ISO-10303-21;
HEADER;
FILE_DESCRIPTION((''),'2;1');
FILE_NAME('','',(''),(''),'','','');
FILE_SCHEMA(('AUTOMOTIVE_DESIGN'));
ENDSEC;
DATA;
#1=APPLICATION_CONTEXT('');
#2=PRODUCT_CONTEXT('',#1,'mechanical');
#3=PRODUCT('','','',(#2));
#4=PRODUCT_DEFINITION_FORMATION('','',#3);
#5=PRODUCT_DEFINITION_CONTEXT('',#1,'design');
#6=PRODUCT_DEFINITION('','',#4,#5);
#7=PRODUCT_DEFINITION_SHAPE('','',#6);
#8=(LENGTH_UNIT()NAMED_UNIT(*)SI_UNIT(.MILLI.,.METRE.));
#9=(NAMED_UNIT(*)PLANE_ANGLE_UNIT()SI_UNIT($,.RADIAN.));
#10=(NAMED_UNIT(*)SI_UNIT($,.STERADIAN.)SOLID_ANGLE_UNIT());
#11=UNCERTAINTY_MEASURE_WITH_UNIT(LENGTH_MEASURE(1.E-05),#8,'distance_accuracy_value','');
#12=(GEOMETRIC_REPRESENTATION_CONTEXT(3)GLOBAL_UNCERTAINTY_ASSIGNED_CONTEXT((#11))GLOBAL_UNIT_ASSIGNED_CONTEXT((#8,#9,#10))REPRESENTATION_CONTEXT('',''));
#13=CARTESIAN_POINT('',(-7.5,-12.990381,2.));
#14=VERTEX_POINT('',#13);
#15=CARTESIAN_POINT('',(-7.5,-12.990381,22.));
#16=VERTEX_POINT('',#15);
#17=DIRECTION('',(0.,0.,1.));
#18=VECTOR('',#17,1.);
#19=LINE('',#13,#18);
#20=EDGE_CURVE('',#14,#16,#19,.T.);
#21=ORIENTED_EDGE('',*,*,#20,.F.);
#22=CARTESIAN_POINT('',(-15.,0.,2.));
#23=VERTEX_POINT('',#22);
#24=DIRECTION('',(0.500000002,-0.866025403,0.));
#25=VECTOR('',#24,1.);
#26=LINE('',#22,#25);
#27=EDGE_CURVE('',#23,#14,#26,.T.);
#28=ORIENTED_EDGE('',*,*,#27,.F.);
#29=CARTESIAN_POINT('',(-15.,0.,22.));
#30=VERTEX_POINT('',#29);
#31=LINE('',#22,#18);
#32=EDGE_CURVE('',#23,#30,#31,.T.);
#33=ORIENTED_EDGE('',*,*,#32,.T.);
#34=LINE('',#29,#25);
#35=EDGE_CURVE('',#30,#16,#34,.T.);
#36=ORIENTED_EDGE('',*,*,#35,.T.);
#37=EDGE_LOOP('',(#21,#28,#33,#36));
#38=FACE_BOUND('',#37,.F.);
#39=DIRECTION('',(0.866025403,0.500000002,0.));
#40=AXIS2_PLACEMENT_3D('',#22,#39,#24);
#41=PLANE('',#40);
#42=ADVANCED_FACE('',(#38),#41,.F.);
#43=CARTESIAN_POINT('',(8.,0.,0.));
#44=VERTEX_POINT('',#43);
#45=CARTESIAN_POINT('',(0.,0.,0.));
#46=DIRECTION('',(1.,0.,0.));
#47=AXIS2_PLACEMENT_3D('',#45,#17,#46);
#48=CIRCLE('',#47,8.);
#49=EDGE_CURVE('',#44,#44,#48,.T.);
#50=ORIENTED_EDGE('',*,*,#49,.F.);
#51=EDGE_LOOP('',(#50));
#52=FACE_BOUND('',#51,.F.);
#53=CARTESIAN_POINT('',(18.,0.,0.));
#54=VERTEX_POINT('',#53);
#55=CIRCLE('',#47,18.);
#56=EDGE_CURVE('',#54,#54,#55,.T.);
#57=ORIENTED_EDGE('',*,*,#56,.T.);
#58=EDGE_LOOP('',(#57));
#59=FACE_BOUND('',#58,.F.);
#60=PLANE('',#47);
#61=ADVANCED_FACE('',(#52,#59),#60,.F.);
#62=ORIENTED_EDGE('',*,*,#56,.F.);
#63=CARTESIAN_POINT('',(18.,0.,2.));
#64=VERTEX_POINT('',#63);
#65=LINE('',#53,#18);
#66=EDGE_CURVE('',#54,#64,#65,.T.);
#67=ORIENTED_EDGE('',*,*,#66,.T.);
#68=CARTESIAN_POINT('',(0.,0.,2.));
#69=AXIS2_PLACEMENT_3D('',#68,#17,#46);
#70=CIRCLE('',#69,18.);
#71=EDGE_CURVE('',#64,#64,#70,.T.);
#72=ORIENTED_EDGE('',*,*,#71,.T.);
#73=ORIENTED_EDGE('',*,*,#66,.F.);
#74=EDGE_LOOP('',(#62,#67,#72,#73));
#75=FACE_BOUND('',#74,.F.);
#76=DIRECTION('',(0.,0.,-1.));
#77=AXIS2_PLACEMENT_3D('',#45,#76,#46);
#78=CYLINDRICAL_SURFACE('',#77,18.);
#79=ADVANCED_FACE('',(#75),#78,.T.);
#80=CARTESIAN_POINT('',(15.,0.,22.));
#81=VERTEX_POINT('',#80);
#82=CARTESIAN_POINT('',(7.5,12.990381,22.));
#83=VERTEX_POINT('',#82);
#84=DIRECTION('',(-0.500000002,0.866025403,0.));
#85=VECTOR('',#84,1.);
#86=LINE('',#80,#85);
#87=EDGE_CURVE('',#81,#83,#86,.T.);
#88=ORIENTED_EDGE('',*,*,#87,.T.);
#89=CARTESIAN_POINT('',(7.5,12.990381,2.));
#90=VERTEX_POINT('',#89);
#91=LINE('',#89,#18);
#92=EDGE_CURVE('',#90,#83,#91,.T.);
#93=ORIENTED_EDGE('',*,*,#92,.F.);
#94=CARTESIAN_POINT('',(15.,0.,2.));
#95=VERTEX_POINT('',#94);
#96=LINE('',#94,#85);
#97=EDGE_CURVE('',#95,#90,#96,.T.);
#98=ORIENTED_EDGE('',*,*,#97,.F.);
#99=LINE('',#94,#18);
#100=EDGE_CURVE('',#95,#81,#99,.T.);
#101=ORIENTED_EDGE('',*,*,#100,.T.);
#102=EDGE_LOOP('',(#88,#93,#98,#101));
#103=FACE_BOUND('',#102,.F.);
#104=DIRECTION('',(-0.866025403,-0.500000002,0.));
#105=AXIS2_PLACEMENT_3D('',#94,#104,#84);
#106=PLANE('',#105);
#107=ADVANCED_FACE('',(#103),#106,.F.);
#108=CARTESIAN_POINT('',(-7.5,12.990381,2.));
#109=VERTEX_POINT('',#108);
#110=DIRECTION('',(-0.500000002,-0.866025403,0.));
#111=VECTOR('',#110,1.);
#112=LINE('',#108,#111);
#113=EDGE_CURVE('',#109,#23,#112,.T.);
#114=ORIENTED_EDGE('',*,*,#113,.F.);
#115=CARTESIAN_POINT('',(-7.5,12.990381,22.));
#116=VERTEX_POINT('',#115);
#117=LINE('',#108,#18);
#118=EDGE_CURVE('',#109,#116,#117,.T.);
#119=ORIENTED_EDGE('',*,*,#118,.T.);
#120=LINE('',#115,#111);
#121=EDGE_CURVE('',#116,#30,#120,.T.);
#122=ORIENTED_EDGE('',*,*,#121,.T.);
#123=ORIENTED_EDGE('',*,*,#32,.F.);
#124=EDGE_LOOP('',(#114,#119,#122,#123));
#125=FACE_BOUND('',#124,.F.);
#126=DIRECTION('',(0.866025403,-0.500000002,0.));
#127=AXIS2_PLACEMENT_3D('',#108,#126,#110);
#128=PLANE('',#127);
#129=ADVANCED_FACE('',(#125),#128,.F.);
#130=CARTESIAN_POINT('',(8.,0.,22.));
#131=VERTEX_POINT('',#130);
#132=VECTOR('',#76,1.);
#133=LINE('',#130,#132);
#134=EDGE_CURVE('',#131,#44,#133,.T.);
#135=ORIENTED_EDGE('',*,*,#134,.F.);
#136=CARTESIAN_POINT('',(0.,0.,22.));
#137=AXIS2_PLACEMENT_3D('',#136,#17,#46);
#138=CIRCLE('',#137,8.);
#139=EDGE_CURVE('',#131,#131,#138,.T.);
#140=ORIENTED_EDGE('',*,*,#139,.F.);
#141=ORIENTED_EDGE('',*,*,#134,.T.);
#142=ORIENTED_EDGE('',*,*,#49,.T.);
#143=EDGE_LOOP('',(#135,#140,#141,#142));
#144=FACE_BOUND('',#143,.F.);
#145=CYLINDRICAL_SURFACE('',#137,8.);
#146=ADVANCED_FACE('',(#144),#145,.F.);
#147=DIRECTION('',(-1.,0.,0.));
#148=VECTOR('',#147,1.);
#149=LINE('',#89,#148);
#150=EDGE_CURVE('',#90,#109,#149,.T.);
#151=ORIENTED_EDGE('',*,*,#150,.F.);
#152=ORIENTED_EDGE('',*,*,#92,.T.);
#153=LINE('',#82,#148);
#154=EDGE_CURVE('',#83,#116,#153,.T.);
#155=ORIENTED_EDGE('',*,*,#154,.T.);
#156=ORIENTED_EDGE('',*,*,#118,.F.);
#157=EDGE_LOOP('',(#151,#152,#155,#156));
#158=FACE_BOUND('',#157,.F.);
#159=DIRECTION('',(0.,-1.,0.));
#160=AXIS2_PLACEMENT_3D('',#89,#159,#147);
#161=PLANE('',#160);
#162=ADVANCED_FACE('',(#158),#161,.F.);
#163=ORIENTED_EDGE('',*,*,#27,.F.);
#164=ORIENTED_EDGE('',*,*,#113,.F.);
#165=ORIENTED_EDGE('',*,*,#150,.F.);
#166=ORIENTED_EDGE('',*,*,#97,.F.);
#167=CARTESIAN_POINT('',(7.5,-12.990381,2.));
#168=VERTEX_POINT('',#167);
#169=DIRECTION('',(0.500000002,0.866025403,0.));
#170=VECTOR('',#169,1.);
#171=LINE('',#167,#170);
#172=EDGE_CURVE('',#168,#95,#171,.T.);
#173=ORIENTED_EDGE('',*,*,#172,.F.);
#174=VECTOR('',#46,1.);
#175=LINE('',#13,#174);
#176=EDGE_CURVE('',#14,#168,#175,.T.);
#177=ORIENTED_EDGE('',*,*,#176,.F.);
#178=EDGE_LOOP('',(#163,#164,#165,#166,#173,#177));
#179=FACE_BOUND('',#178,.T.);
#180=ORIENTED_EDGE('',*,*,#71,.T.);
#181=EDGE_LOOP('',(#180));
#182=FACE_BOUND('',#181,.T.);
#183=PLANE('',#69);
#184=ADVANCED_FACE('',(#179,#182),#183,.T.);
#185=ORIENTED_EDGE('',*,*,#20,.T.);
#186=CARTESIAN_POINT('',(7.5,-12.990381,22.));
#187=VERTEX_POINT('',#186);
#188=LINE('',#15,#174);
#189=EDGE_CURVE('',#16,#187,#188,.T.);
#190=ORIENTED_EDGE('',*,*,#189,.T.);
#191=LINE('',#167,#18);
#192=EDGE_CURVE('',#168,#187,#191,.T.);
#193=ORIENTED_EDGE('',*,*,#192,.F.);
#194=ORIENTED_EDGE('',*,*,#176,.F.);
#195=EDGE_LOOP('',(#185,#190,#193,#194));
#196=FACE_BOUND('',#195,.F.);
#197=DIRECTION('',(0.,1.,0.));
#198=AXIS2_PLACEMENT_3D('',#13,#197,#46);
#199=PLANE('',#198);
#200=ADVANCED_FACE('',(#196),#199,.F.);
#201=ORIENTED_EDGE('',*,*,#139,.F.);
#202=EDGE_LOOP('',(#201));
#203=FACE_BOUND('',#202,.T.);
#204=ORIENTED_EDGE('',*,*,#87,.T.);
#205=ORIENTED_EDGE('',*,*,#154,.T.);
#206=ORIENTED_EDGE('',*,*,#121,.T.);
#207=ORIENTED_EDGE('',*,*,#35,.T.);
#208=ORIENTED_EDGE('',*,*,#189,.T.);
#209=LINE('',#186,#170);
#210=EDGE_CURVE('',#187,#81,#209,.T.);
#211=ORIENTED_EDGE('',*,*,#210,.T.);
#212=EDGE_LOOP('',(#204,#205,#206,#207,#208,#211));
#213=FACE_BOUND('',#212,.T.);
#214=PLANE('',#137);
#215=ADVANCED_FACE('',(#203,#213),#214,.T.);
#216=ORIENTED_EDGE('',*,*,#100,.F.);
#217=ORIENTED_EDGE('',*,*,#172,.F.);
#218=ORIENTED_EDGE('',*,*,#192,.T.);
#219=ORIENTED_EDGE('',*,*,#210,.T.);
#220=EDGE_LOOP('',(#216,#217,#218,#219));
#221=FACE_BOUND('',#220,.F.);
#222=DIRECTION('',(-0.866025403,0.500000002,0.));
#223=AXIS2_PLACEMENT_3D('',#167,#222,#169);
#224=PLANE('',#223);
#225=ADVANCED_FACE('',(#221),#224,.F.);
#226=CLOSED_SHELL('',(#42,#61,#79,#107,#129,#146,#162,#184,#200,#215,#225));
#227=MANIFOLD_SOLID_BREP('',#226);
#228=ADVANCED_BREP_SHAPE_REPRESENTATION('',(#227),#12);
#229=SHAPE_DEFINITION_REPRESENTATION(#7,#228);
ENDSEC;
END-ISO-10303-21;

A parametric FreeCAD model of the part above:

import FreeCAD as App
import Part
import Sketcher
from FreeCAD import Vector
Q = App.Units.Quantity


def add_polygon(sketch, points):
    """Adds a closed chain of lines whose ends are joined by coincident constraints."""
    first, n = sketch.GeometryCount, len(points)
    for a, b in zip(points, points[1:] + points[:1]):
        sketch.addGeometry(Part.LineSegment(App.Vector(*a, 0), App.Vector(*b, 0)), False)
    for i in range(n):
        sketch.addConstraint(Sketcher.Constraint("Coincident", first + i, 2, first + (i + 1) % n, 1))

doc = App.newDocument("Part")
body = doc.addObject("PartDesign::Body", "Body")

# Sketch on XY plane
sketch1 = body.newObject("Sketcher::SketchObject", "Sketch")
sketch1.AttachmentSupport = (doc.getObject("XY_Plane"), [""])
sketch1.MapMode = "FlatFace"
sketch1.addGeometry(Part.Circle(Vector(0, 0, 0), Vector(0, 0, 1), 18), False)
sketch1.addConstraint([
    Sketcher.Constraint("Coincident", 0, 3, -1, 1),
    Sketcher.Constraint("Diameter", 0, 36.0),
])
pad1 = body.newObject("PartDesign::Pad", "Pad")
pad1.Profile = sketch1
pad1.Length = 2

# Sketch on XY plane
sketch2 = body.newObject("Sketcher::SketchObject", "Sketch001")
sketch2.AttachmentSupport = (doc.getObject("XY_Plane"), [""])
sketch2.MapMode = "FlatFace"
sketch2.AttachmentOffset = App.Placement(Vector(0, 0, 2), App.Rotation())
add_polygon(sketch2, [(15, 0), (8, 13), (-8, 13), (-15, 0), (-8, -13), (8, -13)])  # lines 0-5
sketch2.addConstraint([
    Sketcher.Constraint("Horizontal", 1),
    Sketcher.Constraint("Horizontal", 4),
    Sketcher.Constraint("Symmetric", 0, 2, 3, 2, -1, 1),
    Sketcher.Constraint("Symmetric", 2, 2, 5, 2, -1, 1),
    Sketcher.Constraint("PointOnObject", 2, 2, -1),
    Sketcher.Constraint("Parallel", 2, 5),
    Sketcher.Constraint("Vertical", 1, 2, 3, 2),
    Sketcher.Constraint("DistanceX", 1, 2, 1, 1, 15.0),
    Sketcher.Constraint("Angle", 0, Q("120 deg")),
    Sketcher.Constraint("Distance", 0, 15.0),
])
pad2 = body.newObject("PartDesign::Pad", "Pad001")
pad2.Profile = sketch2
pad2.Length = 20

# Sketch on XY plane
sketch3 = body.newObject("Sketcher::SketchObject", "Sketch002")
sketch3.AttachmentSupport = (doc.getObject("XY_Plane"), [""])
sketch3.MapMode = "FlatFace"
sketch3.AttachmentOffset = App.Placement(Vector(0, 0, 22), App.Rotation())
sketch3.addGeometry(Part.Circle(Vector(0, 0, 0), Vector(0, 0, 1), 8), False)
sketch3.addConstraint([
    Sketcher.Constraint("Coincident", 0, 3, -1, 1),
    Sketcher.Constraint("Diameter", 0, 16.0),
])
pocket1 = body.newObject("PartDesign::Pocket", "Pocket")
pocket1.Profile = sketch3
pocket1.Length = 22

doc.recompute()
